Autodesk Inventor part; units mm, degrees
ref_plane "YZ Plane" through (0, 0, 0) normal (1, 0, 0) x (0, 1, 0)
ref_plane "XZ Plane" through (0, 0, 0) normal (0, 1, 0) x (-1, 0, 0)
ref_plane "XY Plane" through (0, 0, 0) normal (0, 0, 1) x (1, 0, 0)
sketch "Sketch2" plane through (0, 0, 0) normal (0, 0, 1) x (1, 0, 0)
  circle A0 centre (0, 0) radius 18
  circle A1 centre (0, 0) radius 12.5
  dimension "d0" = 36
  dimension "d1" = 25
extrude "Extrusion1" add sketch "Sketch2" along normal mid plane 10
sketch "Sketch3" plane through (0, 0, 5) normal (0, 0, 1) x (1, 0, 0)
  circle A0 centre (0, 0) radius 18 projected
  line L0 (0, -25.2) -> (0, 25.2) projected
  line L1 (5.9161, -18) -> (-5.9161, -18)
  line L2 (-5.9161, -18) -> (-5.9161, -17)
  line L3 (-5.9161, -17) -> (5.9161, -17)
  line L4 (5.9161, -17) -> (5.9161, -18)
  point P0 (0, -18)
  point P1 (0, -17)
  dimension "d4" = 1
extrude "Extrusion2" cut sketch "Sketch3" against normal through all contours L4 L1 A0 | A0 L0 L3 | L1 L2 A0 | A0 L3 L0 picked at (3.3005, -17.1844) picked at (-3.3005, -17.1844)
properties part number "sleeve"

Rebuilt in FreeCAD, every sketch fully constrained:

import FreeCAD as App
import Part
import Sketcher
from FreeCAD import Vector


def add_polygon(sketch, points):
    """Adds a closed chain of lines whose ends are joined by coincident constraints."""
    first, n = sketch.GeometryCount, len(points)
    for a, b in zip(points, points[1:] + points[:1]):
        sketch.addGeometry(Part.LineSegment(App.Vector(*a, 0), App.Vector(*b, 0)), False)
    for i in range(n):
        sketch.addConstraint(Sketcher.Constraint("Coincident", first + i, 2, first + (i + 1) % n, 1))

doc = App.newDocument("Part")
params = doc.addObject("Spreadsheet::Sheet", "Params")
for row, (alias, value) in enumerate([
    ("sketch1_diameter", "36 mm"),
    ("sketch1_diameter2", "25 mm"),
    ("pad1_length", "10 mm"),
    ("sketch2_height", "1 mm"),
], start=1):
    params.set(f"A{row}", alias)
    params.set(f"B{row}", "=" + value)
    params.setAlias(f"B{row}", alias)

body = doc.addObject("PartDesign::Body", "Body")

sketch1 = body.newObject("Sketcher::SketchObject", "Sketch")
sketch1.AttachmentSupport = (doc.getObject("XY_Plane"), [""])
sketch1.MapMode = "FlatFace"
sketch1.addGeometry(Part.Circle(Vector(0, 0, 0), Vector(0, 0, 1), 18), False)
sketch1.addGeometry(Part.Circle(Vector(0, 0, 0), Vector(0, 0, 1), 12), False)
sketch1.addConstraint(Sketcher.Constraint("Coincident", 0, 3, -1, 1))
sketch1.addConstraint(Sketcher.Constraint("Coincident", 1, 3, -1, 1))
sketch1.addConstraint(Sketcher.Constraint("Diameter", 0, 36.0))
sketch1.addConstraint(Sketcher.Constraint("Diameter", 1, 25.0))
sketch1.setExpression("Constraints[2]", "Params.sketch1_diameter")
sketch1.setExpression("Constraints[3]", "Params.sketch1_diameter2")
pad1 = body.newObject("PartDesign::Pad", "Pad")
pad1.Profile = sketch1
pad1.setExpression("Length", "Params.pad1_length")
pad1.Midplane = True

sketch2 = body.newObject("Sketcher::SketchObject", "Sketch001")
sketch2.AttachmentSupport = (doc.getObject("XY_Plane"), [""])
sketch2.MapMode = "FlatFace"
sketch2.AttachmentOffset = App.Placement(Vector(0, 0, 5), App.Rotation())
add_polygon(sketch2, [(5.9, -18), (5.9, -17), (-5.9, -17), (-5.9, -18)])
sketch2.addConstraint(Sketcher.Constraint("Vertical", 0))
sketch2.addConstraint(Sketcher.Constraint("Horizontal", 1))
sketch2.addConstraint(Sketcher.Constraint("Vertical", 2))
sketch2.addConstraint(Sketcher.Constraint("Horizontal", 3))
sketch2.addConstraint(Sketcher.Constraint("DistanceY", 0, 1, 0, 2, 1.0))
sketch2.addConstraint(Sketcher.Constraint("DistanceY", 0, 2, -1, 1, 17.0))
sketch2.addConstraint(Sketcher.Constraint("DistanceX", 1, 2, 1, 1, 11.8322))
sketch2.addConstraint(Sketcher.Constraint("DistanceX", -1, 1, 0, 2, 5.916))
sketch2.setExpression("Constraints[8]", "Params.sketch2_height")
pocket1 = body.newObject("PartDesign::Pocket", "Pocket")
pocket1.Profile = sketch2
pocket1.Type = "ThroughAll"

doc.recompute()
